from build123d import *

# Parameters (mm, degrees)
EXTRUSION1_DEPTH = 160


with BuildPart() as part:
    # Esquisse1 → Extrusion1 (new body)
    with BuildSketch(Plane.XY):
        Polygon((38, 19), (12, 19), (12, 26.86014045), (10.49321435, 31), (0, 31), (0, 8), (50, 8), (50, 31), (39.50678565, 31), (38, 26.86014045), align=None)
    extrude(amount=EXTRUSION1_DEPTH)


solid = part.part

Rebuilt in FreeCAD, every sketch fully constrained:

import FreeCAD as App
import Part
import Sketcher
Q = App.Units.Quantity


def add_polygon(sketch, points):
    """Adds a closed chain of lines whose ends are joined by coincident constraints."""
    first, n = sketch.GeometryCount, len(points)
    for a, b in zip(points, points[1:] + points[:1]):
        sketch.addGeometry(Part.LineSegment(App.Vector(*a, 0), App.Vector(*b, 0)), False)
    for i in range(n):
        sketch.addConstraint(Sketcher.Constraint("Coincident", first + i, 2, first + (i + 1) % n, 1))

doc = App.newDocument("Part")
body = doc.addObject("PartDesign::Body", "Body")

# Sketch on XY plane
sketch1 = body.newObject("Sketcher::SketchObject", "Sketch")
sketch1.AttachmentSupport = (doc.getObject("XY_Plane"), [""])
sketch1.MapMode = "FlatFace"
add_polygon(sketch1, [(38, 19), (12, 19), (12, 26.9), (10.5, 31), (0, 31), (0, 8), (50, 8), (50, 31), (39.5, 31), (38, 26.9)])  # lines 0-9
sketch1.addConstraint([
    Sketcher.Constraint("Horizontal", 0),
    Sketcher.Constraint("Vertical", 1),
    Sketcher.Constraint("Horizontal", 3),
    Sketcher.Constraint("Vertical", 4),
    Sketcher.Constraint("Horizontal", 5),
    Sketcher.Constraint("Vertical", 6),
    Sketcher.Constraint("Horizontal", 7),
    Sketcher.Constraint("Vertical", 9),
    Sketcher.Constraint("PointOnObject", 3, 2, -2),
    Sketcher.Constraint("Horizontal", 3, 2, 6, 2),
    Sketcher.Constraint("Horizontal", 1, 2, 8, 2),
    Sketcher.Constraint("Equal", 3, 7),
    Sketcher.Constraint("Equal", 2, 8),
    Sketcher.Constraint("DistanceX", 0, 2, 0, 1, 26.0),
    Sketcher.Constraint("DistanceX", 5, 1, 5, 2, 50.0),
    Sketcher.Constraint("DistanceY", 4, 2, 4, 1, 23.0),
    Sketcher.Constraint("Angle", 2, Q("110 deg")),
    Sketcher.Constraint("DistanceY", -1, 1, 0, 2, 19.0),
    Sketcher.Constraint("DistanceY", -1, 1, 2, 2, 31.0),
    Sketcher.Constraint("DistanceY", 1, 1, 1, 2, 7.86014),
])
pad1 = body.newObject("PartDesign::Pad", "Pad")
pad1.Profile = sketch1
pad1.Length = 160

doc.recompute()
